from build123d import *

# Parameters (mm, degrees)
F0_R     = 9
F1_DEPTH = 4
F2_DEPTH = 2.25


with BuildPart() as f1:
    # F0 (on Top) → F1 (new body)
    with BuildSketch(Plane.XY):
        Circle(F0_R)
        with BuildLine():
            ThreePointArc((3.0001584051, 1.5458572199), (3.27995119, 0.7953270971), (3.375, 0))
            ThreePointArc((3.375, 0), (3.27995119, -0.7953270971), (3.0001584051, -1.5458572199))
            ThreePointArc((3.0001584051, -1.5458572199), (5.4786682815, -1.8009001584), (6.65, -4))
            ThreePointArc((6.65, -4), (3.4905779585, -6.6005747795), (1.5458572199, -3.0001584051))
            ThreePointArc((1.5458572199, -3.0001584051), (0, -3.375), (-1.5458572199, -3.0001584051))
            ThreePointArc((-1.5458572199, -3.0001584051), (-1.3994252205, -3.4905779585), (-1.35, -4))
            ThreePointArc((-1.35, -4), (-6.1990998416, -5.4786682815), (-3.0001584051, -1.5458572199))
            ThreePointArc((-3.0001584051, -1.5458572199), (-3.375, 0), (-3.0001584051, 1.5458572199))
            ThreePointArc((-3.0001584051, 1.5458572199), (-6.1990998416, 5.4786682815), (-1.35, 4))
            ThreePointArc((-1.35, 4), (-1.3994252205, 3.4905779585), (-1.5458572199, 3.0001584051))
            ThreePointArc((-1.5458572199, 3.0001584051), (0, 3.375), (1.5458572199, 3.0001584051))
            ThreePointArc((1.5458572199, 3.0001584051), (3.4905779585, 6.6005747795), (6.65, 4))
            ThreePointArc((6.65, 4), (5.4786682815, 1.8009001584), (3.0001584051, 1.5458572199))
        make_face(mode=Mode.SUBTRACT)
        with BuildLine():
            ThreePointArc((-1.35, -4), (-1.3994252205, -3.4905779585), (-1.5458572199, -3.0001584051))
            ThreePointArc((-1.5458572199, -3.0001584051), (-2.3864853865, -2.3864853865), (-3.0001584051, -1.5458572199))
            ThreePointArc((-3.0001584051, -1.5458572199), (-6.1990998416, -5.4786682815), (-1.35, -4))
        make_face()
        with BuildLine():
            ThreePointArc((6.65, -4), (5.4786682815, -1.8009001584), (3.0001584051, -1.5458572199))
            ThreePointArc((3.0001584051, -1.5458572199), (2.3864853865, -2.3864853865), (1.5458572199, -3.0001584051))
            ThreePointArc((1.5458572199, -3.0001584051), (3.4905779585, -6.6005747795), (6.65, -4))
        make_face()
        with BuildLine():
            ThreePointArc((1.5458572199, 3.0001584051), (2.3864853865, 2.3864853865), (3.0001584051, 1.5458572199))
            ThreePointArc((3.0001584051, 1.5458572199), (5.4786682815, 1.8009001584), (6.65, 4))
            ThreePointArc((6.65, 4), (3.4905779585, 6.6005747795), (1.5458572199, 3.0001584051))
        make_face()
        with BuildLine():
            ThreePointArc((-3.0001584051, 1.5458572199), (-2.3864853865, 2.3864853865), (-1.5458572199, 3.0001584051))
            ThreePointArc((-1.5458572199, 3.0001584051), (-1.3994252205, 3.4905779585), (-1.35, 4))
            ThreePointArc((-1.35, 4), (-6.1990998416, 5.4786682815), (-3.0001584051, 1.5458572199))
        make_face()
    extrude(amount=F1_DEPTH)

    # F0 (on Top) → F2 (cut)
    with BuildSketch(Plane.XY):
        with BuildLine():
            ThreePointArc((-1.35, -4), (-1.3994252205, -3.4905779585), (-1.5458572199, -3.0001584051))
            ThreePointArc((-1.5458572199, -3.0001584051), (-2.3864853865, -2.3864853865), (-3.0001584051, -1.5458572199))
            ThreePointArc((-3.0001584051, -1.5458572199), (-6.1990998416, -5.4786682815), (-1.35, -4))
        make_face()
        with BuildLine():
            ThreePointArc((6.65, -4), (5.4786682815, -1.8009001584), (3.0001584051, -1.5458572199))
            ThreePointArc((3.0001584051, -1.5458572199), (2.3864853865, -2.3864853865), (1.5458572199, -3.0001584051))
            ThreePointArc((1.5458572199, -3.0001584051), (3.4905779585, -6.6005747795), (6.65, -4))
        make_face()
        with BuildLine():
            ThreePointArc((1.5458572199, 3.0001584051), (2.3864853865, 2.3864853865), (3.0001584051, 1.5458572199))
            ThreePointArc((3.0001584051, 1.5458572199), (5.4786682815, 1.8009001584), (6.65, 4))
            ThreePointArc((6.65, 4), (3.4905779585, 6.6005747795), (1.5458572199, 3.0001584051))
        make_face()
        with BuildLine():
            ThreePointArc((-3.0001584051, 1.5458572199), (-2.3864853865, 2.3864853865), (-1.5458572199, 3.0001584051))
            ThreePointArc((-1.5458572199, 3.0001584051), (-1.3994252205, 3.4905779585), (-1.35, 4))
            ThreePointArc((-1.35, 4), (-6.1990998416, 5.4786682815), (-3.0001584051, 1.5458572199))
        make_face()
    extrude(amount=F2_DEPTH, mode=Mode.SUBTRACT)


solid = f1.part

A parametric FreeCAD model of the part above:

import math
import FreeCAD as App
import Part
import Sketcher

V = App.Vector

doc = App.newDocument("Part")
params = doc.addObject("Spreadsheet::Sheet", "Params")
for row, (alias, value) in enumerate([
    ("sketch1_diameter", "18 mm"),
    ("pad1_length", "4 mm"),
    ("sketch2_radius", "2.65 mm"),
    ("pocket1_length", "2.25 mm"),
], start=1):
    params.set(f"A{row}", alias)
    params.set(f"B{row}", "=" + value)
    params.setAlias(f"B{row}", alias)

body = doc.addObject("PartDesign::Body", "Body")

sketch1 = body.newObject("Sketcher::SketchObject", "Sketch")
sketch1.AttachmentSupport = (doc.getObject("XY_Plane"), [""])
sketch1.MapMode = "FlatFace"
sketch1.addGeometry([
    Part.Circle(V(0, 0, 0), V(0, 0, 1), 9),
    Part.ArcOfCircle(Part.Circle(V(0, 0, 0), V(0, 0, 1), 3.375), math.radians(0), math.radians(27.260174)),
    Part.ArcOfCircle(Part.Circle(V(0, 0, 0), V(0, 0, 1), 3.375), math.radians(-27.260174), math.radians(0)),
    Part.ArcOfCircle(Part.Circle(V(0, 0, 0), V(0, 0, 1), 3.375), math.radians(-62.739826), math.radians(-27.260174)),
    Part.ArcOfCircle(Part.Circle(V(0, 0, 0), V(0, 0, 1), 3.375), math.radians(-117.260174), math.radians(-62.739826)),
    Part.ArcOfCircle(Part.Circle(V(0, 0, 0), V(0, 0, 1), 3.375), math.radians(-152.739826), math.radians(-117.260174)),
    Part.ArcOfCircle(Part.Circle(V(0, 0, 0), V(0, 0, 1), 3.375), math.radians(152.739826), math.radians(207.260174)),
    Part.ArcOfCircle(Part.Circle(V(0, 0, 0), V(0, 0, 1), 3.375), math.radians(117.260174), math.radians(152.739826)),
    Part.ArcOfCircle(Part.Circle(V(0, 0, 0), V(0, 0, 1), 3.375), math.radians(62.739826), math.radians(117.260174)),
    Part.ArcOfCircle(Part.Circle(V(0, 0, 0), V(0, 0, 1), 3.375), math.radians(27.260174), math.radians(62.739826)),
], False)
sketch1.addConstraint([
    Sketcher.Constraint("Tangent", 1, 1, 2, 2),
    Sketcher.Constraint("Tangent", 2, 1, 3, 2),
    Sketcher.Constraint("Tangent", 3, 1, 4, 2),
    Sketcher.Constraint("Tangent", 4, 1, 5, 2),
    Sketcher.Constraint("Tangent", 5, 1, 6, 2),
    Sketcher.Constraint("Tangent", 6, 1, 7, 2),
    Sketcher.Constraint("Tangent", 7, 1, 8, 2),
    Sketcher.Constraint("Tangent", 8, 1, 9, 2),
    Sketcher.Constraint("Tangent", 9, 1, 1, 2),
    Sketcher.Constraint("Coincident", 0, 3, -1, 1),
    Sketcher.Constraint("Coincident", 1, 3, -1, 1),
    Sketcher.Constraint("Coincident", 3, 3, -1, 1),
    Sketcher.Constraint("Coincident", 5, 3, -1, 1),
    Sketcher.Constraint("Coincident", 7, 3, -1, 1),
    Sketcher.Constraint("PointOnObject", 1, 1, -1),
    Sketcher.Constraint("Horizontal", 3, 1, 4, 1),
    Sketcher.Constraint("Horizontal", 2, 1, 5, 1),
    Sketcher.Constraint("Horizontal", 7, 1, 8, 1),
    Sketcher.Constraint("Horizontal", 6, 1, 9, 1),
    Sketcher.Constraint("Vertical", 5, 1, 6, 1),
    Sketcher.Constraint("Vertical", 4, 1, 7, 1),
    Sketcher.Constraint("Diameter", 0, 18.0),
    Sketcher.Constraint("Radius", 1, 3.375),
    Sketcher.Constraint("DistanceX", 3, 1, 2, 1, 1.454301),
    Sketcher.Constraint("DistanceY", 3, 1, 2, 1, 1.454301),
])
sketch1.setExpression("Constraints[21]", "Params.sketch1_diameter")
pad1 = body.newObject("PartDesign::Pad", "Pad")
pad1.Profile = sketch1
pad1.setExpression("Length", "Params.pad1_length")

sketch2 = body.newObject("Sketcher::SketchObject", "Sketch001")
sketch2.AttachmentSupport = (doc.getObject("XY_Plane"), [""])
sketch2.MapMode = "FlatFace"
sketch2.addGeometry([
    Part.ArcOfCircle(Part.Circle(V(-4, -4, 0), V(0, 0, 1), 2.65), math.radians(0), math.radians(22.166459)),
    Part.ArcOfCircle(Part.Circle(V(0, 0, 0), V(0, 0, 1), 3.375), math.radians(-152.739826), math.radians(-117.260174)),
    Part.ArcOfCircle(Part.Circle(V(-4, -4, 0), V(0, 0, 1), 2.65), math.radians(67.833541), math.radians(360)),
    Part.ArcOfCircle(Part.Circle(V(4, -4, 0), V(0, 0, 1), 2.65), math.radians(0), math.radians(112.166459)),
    Part.ArcOfCircle(Part.Circle(V(0, 0, 0), V(0, 0, 1), 3.375), math.radians(-62.739826), math.radians(-27.260174)),
    Part.ArcOfCircle(Part.Circle(V(4, -4, 0), V(0, 0, 1), 2.65), math.radians(157.833541), math.radians(360)),
    Part.ArcOfCircle(Part.Circle(V(0, 0, 0), V(0, 0, 1), 3.375), math.radians(27.260174), math.radians(62.739826)),
    Part.ArcOfCircle(Part.Circle(V(4, 4, 0), V(0, 0, 1), 2.65), math.radians(-112.166459), math.radians(0)),
    Part.ArcOfCircle(Part.Circle(V(4, 4, 0), V(0, 0, 1), 2.65), math.radians(0), math.radians(202.166459)),
    Part.ArcOfCircle(Part.Circle(V(0, 0, 0), V(0, 0, 1), 3.375), math.radians(117.260174), math.radians(152.739826)),
    Part.ArcOfCircle(Part.Circle(V(-4, 4, 0), V(0, 0, 1), 2.65), math.radians(-22.166459), math.radians(0)),
    Part.ArcOfCircle(Part.Circle(V(-4, 4, 0), V(0, 0, 1), 2.65), math.radians(0), math.radians(292.166459)),
], False)
sketch2.addConstraint([
    Sketcher.Constraint("Coincident", 0, 2, 1, 2),
    Sketcher.Constraint("Coincident", 1, 1, 2, 1),
    Sketcher.Constraint("Tangent", 2, 2, 0, 1),
    Sketcher.Constraint("Coincident", 3, 2, 4, 2),
    Sketcher.Constraint("Coincident", 4, 1, 5, 1),
    Sketcher.Constraint("Tangent", 5, 2, 3, 1),
    Sketcher.Constraint("Coincident", 6, 1, 7, 1),
    Sketcher.Constraint("Tangent", 7, 2, 8, 1),
    Sketcher.Constraint("Coincident", 8, 2, 6, 2),
    Sketcher.Constraint("Coincident", 9, 1, 10, 1),
    Sketcher.Constraint("Tangent", 10, 2, 11, 1),
    Sketcher.Constraint("Coincident", 11, 2, 9, 2),
    Sketcher.Constraint("Coincident", 1, 3, -1, 1),
    Sketcher.Constraint("Coincident", 4, 3, -1, 1),
    Sketcher.Constraint("Coincident", 6, 3, -1, 1),
    Sketcher.Constraint("Coincident", 9, 3, -1, 1),
    Sketcher.Constraint("Equal", 0, 2),
    Sketcher.Constraint("Equal", 2, 3),
    Sketcher.Constraint("Equal", 1, 4),
    Sketcher.Constraint("Equal", 3, 5),
    Sketcher.Constraint("Equal", 4, 6),
    Sketcher.Constraint("Equal", 5, 7),
    Sketcher.Constraint("Equal", 7, 8),
    Sketcher.Constraint("Equal", 6, 9),
    Sketcher.Constraint("Equal", 8, 10),
    Sketcher.Constraint("Equal", 10, 11),
    Sketcher.Constraint("Symmetric", 0, 3, 7, 3, -1, 1),
    Sketcher.Constraint("Symmetric", 3, 3, 10, 3, -1, 1),
    Sketcher.Constraint("Symmetric", 0, 3, 3, 3, -2),
    Sketcher.Constraint("Horizontal", 5, 3, 2, 2),
    Sketcher.Constraint("Horizontal", 2, 2, 5, 2),
    Sketcher.Constraint("Horizontal", 11, 3, 7, 2),
    Sketcher.Constraint("Horizontal", 7, 2, 10, 2),
    Sketcher.Constraint("Radius", 0, 2.65),
    Sketcher.Constraint("DistanceX", 0, 3, -1, 1, 4.0),
    Sketcher.Constraint("DistanceY", 0, 3, -1, 1, 4.0),
    Sketcher.Constraint("Radius", 1, 3.375),
])
sketch2.setExpression("Constraints[33]", "Params.sketch2_radius")
pocket1 = body.newObject("PartDesign::Pocket", "Pocket")
pocket1.Profile = sketch2
pocket1.setExpression("Length", "Params.pocket1_length")
pocket1.Reversed = True

doc.recompute()
